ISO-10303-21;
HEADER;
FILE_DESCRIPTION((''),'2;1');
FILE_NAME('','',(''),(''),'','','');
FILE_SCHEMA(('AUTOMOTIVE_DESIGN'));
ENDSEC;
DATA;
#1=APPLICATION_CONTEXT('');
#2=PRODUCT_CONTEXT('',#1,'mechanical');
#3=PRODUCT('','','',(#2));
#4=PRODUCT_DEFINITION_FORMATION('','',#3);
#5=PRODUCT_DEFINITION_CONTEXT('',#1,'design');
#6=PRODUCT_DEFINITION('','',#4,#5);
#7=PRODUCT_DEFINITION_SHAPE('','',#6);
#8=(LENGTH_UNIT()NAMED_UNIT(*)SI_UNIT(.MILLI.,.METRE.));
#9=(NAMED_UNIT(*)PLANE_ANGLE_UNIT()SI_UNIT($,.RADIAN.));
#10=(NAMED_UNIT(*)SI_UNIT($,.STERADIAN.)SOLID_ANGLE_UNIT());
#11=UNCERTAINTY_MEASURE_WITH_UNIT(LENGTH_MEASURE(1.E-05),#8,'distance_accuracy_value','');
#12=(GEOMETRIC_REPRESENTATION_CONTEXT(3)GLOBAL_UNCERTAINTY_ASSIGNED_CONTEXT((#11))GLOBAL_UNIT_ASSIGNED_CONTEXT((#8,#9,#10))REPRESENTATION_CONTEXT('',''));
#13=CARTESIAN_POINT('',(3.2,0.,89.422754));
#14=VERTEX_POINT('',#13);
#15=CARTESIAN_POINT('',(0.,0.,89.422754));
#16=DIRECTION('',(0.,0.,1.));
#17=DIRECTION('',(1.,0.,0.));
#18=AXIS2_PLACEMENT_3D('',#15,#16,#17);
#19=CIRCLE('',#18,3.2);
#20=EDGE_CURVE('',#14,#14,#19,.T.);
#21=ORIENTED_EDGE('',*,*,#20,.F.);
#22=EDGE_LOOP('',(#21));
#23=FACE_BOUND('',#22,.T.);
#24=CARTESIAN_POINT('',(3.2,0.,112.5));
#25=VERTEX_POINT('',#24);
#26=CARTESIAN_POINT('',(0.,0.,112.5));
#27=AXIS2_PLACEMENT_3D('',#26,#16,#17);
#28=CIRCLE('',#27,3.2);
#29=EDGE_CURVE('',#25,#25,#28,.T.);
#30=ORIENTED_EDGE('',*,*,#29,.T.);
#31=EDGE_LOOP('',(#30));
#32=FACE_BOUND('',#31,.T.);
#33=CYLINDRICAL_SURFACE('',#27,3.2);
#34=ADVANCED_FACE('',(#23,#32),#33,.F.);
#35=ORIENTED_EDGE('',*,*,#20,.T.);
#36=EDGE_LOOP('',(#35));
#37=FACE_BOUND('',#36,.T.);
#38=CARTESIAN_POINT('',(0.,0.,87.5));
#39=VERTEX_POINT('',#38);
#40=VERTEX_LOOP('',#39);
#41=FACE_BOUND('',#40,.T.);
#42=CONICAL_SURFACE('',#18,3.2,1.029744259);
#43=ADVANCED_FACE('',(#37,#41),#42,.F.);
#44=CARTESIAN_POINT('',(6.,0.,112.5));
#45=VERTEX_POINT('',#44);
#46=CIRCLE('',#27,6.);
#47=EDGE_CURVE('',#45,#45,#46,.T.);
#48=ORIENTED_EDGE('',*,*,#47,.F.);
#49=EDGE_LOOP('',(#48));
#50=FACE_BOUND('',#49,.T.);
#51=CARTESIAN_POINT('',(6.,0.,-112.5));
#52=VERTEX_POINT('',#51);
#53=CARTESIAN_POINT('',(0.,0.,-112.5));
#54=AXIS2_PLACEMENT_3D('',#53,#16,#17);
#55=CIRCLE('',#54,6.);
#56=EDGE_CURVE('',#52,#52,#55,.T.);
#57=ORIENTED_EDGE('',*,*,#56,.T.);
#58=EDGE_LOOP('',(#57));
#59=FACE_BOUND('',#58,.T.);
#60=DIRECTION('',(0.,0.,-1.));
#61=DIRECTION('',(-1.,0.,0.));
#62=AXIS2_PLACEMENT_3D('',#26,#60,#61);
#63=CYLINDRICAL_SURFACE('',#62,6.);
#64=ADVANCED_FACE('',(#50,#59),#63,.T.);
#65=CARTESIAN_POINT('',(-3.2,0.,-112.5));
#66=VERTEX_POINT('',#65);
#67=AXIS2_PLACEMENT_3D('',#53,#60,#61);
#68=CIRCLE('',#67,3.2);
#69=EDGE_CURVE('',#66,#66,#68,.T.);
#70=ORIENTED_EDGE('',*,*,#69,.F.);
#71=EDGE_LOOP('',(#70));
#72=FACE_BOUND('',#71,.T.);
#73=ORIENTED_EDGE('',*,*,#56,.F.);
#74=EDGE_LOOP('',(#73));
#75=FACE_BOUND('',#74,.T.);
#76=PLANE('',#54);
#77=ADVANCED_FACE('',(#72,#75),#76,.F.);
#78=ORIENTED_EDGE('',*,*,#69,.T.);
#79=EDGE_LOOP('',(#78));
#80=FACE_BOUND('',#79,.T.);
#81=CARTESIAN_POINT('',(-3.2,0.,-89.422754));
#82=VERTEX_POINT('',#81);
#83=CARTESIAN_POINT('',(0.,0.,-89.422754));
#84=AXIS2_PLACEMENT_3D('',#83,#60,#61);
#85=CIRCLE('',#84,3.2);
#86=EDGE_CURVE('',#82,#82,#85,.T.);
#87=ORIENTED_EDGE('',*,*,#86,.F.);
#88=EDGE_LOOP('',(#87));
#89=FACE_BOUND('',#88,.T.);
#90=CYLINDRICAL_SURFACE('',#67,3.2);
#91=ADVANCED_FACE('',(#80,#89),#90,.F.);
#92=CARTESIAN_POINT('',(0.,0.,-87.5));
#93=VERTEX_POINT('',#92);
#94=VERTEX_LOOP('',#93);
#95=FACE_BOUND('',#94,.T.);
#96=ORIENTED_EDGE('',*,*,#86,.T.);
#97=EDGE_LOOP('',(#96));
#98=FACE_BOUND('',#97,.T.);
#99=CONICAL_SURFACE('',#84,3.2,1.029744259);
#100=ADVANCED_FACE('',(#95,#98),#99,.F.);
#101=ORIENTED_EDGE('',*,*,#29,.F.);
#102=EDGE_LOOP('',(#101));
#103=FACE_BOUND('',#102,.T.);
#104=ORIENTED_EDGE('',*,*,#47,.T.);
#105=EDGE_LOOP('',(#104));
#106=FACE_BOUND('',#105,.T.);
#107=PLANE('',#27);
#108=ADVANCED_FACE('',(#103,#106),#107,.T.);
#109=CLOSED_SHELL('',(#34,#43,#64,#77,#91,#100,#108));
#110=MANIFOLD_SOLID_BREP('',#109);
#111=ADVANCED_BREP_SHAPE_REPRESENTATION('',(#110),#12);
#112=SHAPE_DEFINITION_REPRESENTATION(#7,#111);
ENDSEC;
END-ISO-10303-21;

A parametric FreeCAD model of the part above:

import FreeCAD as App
import Part
import Sketcher
from FreeCAD import Vector
Q = App.Units.Quantity


def add_polygon(sketch, points):
    """Adds a closed chain of lines whose ends are joined by coincident constraints."""
    first, n = sketch.GeometryCount, len(points)
    for a, b in zip(points, points[1:] + points[:1]):
        sketch.addGeometry(Part.LineSegment(App.Vector(*a, 0), App.Vector(*b, 0)), False)
    for i in range(n):
        sketch.addConstraint(Sketcher.Constraint("Coincident", first + i, 2, first + (i + 1) % n, 1))

doc = App.newDocument("Part")
body = doc.addObject("PartDesign::Body", "Body")

# Sketch on XY plane
sketch1 = body.newObject("Sketcher::SketchObject", "Sketch")
sketch1.AttachmentSupport = (doc.getObject("XY_Plane"), [""])
sketch1.MapMode = "FlatFace"
sketch1.addGeometry(Part.Circle(Vector(0, 0, 0), Vector(0, 0, 1), 6), False)
sketch1.addConstraint([
    Sketcher.Constraint("Coincident", 0, 3, -1, 1),
    Sketcher.Constraint("Diameter", 0, Q("12 mm")),
])
pad1 = body.newObject("PartDesign::Pad", "Pad")
pad1.Profile = sketch1
pad1.Length = 225
pad1.Midplane = True

# Sketch on YZ plane
sketch2 = body.newObject("Sketcher::SketchObject", "Sketch001")
sketch2.AttachmentSupport = (doc.getObject("YZ_Plane"), [""])
sketch2.MapMode = "FlatFace"
add_polygon(sketch2, [(0, 87.5), (0, 112.5), (-3.2, 112.5), (-3.2, 89.4)])  # lines 0-3
sketch2.addConstraint([
    Sketcher.Constraint("Vertical", 0),
    Sketcher.Constraint("Horizontal", 1),
    Sketcher.Constraint("Vertical", 2),
    Sketcher.Constraint("PointOnObject", 0, 2, -2),
    Sketcher.Constraint("DistanceY", 0, 1, 0, 2, Q("25 mm")),
    Sketcher.Constraint("Angle", 3, Q("-31 deg")),
    Sketcher.Constraint("DistanceX", 1, 2, 1, 1, Q("3.2 mm")),
    Sketcher.Constraint("DistanceY", -1, 1, 0, 2, Q("112.5 mm")),
])
groove = body.newObject("PartDesign::Groove", "Groove")
groove.Profile = sketch2
groove.ReferenceAxis = (sketch2, ["V_Axis"])
groove.Angle = 360
doc.recompute()

mirrored = body.newObject("PartDesign::Mirrored", "Mirrored")
mirrored.Originals = [groove]
mirrored.MirrorPlane = (doc.getObject("XY_Plane"), [""])
body.Tip = mirrored

doc.recompute()
